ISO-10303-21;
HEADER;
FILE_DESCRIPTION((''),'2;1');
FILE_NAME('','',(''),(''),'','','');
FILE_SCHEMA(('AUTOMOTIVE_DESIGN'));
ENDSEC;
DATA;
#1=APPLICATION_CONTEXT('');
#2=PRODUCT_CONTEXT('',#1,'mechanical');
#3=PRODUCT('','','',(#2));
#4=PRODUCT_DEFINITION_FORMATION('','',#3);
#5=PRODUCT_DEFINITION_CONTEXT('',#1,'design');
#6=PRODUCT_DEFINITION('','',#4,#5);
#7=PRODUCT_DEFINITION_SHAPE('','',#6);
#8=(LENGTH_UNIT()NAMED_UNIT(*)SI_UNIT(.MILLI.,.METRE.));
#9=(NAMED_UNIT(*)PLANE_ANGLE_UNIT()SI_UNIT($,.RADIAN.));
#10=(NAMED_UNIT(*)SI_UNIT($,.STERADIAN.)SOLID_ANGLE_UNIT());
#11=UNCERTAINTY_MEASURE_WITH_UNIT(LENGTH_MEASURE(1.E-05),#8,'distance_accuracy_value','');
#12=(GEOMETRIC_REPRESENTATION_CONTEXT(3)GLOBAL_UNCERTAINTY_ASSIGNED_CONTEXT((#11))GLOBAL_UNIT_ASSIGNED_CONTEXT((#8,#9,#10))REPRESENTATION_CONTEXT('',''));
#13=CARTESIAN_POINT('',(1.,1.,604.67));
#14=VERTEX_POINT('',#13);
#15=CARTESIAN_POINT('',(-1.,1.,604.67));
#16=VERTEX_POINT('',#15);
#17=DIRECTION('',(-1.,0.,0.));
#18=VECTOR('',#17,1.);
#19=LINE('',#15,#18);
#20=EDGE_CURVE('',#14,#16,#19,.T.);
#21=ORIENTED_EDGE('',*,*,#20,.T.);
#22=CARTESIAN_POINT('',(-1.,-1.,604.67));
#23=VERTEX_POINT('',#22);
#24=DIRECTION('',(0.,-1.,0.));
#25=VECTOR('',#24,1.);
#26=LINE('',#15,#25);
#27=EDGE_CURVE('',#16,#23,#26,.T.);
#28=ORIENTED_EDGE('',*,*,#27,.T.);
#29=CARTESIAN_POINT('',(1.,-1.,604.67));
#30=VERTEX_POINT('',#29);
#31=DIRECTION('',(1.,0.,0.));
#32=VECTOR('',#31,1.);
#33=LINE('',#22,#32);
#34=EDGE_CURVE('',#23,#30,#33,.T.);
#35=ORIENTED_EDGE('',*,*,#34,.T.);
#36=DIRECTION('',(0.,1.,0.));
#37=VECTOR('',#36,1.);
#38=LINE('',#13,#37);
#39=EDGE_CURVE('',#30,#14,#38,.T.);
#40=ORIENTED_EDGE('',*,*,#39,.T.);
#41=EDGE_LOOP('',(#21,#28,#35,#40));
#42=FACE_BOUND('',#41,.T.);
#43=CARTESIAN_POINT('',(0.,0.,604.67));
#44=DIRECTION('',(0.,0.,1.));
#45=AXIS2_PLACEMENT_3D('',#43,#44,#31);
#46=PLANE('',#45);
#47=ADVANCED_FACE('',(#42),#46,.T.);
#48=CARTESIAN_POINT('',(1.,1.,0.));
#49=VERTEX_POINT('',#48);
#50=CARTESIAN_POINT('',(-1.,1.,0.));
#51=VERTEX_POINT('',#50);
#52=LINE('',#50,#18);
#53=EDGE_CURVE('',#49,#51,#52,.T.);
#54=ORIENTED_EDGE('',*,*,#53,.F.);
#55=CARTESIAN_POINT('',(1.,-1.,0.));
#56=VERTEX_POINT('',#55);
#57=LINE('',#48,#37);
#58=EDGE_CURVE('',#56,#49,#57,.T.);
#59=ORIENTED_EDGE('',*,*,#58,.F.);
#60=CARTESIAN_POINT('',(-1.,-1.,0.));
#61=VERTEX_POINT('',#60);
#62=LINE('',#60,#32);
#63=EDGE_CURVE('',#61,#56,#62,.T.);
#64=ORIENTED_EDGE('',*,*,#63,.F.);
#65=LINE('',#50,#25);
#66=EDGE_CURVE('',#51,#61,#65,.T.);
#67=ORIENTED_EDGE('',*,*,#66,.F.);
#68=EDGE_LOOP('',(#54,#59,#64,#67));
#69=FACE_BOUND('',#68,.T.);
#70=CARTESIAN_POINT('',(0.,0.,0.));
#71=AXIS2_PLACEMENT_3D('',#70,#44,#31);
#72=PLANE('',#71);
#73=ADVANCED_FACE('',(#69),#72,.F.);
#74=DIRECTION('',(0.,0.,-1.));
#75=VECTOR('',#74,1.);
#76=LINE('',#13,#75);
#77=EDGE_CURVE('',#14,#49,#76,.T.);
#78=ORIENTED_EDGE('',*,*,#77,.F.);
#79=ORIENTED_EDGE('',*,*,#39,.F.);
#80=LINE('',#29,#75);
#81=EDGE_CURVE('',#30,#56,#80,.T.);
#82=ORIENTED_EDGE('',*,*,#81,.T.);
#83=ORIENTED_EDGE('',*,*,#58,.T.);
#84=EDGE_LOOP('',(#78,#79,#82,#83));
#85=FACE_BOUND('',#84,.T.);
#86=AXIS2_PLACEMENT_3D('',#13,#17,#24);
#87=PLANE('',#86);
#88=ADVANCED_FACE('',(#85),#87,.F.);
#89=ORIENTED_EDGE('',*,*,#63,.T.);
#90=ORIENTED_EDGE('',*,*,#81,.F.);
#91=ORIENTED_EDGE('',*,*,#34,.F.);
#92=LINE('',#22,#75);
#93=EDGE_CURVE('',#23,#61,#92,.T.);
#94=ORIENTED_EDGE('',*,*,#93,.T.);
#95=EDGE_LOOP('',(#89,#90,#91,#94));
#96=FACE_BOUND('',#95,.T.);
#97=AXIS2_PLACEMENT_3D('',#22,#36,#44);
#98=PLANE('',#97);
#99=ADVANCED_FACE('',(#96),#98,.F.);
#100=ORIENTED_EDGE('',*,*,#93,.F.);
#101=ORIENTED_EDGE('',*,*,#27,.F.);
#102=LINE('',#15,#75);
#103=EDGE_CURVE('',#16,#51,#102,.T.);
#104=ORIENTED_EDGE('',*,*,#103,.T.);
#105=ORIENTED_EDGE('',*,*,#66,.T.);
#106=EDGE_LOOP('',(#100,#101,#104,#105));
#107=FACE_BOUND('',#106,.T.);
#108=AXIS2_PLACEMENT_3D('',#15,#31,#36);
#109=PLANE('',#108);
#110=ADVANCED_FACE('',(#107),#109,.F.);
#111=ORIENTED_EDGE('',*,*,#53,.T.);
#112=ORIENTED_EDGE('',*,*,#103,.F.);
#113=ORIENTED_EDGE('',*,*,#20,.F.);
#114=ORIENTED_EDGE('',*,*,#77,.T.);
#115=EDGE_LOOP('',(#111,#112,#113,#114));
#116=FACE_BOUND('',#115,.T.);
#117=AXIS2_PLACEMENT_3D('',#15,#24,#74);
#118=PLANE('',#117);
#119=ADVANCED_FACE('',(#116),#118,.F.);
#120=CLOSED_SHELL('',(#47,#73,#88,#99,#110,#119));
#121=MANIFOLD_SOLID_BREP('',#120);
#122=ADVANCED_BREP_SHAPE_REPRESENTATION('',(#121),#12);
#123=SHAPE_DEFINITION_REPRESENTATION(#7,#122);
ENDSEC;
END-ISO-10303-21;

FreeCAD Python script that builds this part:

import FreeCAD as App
import Part
import Sketcher
from FreeCAD import Vector
Q = App.Units.Quantity

doc = App.newDocument("Part")
body = doc.addObject("PartDesign::Body", "Body")

# Sketch on XY plane
sketch1 = body.newObject("Sketcher::SketchObject", "Sketch")
sketch1.AttachmentSupport = (doc.getObject("XY_Plane"), [""])
sketch1.MapMode = "FlatFace"
sketch1.addGeometry([
    Part.LineSegment(Vector(-1, 1, 0), Vector(-1, -1, 0)),
    Part.LineSegment(Vector(-1, -1, 0), Vector(1, -1, 0)),
    Part.LineSegment(Vector(1, -1, 0), Vector(1, 1, 0)),
    Part.LineSegment(Vector(1, 1, 0), Vector(-1, 1, 0)),
], False)
sketch1.addConstraint([
    Sketcher.Constraint("Coincident", 0, 2, 1, 1),
    Sketcher.Constraint("Coincident", 1, 2, 2, 1),
    Sketcher.Constraint("Coincident", 2, 2, 3, 1),
    Sketcher.Constraint("Coincident", 3, 2, 0, 1),
    Sketcher.Constraint("Vertical", 0),
    Sketcher.Constraint("Horizontal", 1),
    Sketcher.Constraint("Vertical", 2),
    Sketcher.Constraint("Horizontal", 3),
    Sketcher.Constraint("Symmetric", 0, 2, 2, 2, -1, 1),
    Sketcher.Constraint("Equal", 3, 0),
    Sketcher.Constraint("DistanceX", 1, 1, 1, 2, Q("2 mm")),
])
pad1 = body.newObject("PartDesign::Pad", "Pad")
pad1.Profile = sketch1
pad1.Length = 604.67

doc.recompute()
